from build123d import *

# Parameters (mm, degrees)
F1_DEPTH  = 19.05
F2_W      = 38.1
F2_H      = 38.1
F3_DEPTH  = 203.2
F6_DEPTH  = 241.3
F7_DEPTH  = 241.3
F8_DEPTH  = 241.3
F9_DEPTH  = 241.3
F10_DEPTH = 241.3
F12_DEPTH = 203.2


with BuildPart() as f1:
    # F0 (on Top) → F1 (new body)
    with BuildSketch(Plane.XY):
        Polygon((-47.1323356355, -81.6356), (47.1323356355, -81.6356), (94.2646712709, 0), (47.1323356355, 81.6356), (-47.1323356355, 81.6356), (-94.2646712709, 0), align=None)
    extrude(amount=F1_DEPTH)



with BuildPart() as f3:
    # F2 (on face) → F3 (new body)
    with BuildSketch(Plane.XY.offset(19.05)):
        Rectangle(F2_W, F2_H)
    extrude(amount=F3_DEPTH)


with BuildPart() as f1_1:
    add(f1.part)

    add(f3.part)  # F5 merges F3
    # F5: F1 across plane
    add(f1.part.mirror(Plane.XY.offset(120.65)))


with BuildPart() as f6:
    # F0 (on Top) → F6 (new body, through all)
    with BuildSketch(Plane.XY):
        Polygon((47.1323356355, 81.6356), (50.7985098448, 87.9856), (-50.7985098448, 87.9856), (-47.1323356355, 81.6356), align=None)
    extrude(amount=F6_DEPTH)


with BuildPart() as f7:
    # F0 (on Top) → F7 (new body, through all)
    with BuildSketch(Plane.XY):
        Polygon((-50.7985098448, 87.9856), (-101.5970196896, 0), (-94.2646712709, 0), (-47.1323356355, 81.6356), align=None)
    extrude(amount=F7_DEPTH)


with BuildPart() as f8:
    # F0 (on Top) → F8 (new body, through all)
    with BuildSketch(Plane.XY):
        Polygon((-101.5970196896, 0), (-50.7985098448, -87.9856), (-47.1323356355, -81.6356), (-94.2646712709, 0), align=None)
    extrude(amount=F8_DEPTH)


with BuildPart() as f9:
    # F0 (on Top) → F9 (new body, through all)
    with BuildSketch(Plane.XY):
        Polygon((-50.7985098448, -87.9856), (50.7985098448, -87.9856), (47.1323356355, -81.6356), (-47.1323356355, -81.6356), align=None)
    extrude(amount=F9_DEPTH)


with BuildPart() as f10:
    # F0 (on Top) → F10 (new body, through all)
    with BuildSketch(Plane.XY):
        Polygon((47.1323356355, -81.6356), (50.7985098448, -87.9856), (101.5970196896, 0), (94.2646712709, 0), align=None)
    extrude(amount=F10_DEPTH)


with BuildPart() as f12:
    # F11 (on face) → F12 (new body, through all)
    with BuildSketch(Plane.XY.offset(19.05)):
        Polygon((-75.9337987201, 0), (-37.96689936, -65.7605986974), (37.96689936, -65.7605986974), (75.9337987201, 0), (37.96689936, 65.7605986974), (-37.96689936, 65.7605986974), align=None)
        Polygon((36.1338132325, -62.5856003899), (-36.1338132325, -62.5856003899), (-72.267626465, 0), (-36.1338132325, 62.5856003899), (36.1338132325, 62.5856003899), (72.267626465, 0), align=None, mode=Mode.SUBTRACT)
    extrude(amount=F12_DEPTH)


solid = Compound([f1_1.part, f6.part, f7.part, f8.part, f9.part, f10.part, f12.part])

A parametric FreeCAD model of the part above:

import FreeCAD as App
import Part
import Sketcher

V = App.Vector
Q = App.Units.Quantity


def add_polygon(sketch, points):
    """Adds a closed chain of lines whose ends are joined by coincident constraints."""
    first, n = sketch.GeometryCount, len(points)
    for a, b in zip(points, points[1:] + points[:1]):
        sketch.addGeometry(Part.LineSegment(App.Vector(*a, 0), App.Vector(*b, 0)), False)
    for i in range(n):
        sketch.addConstraint(Sketcher.Constraint("Coincident", first + i, 2, first + (i + 1) % n, 1))

doc = App.newDocument("Part")
body = doc.addObject("PartDesign::Body", "Body")

# Sketch on XY plane
sketch1 = body.newObject("Sketcher::SketchObject", "Sketch")
sketch1.AttachmentSupport = (doc.getObject("XY_Plane"), [""])
sketch1.MapMode = "FlatFace"
add_polygon(sketch1, [(-47, -82), (47, -82), (94, 0), (47, 82), (-47, 82), (-94, 0)])  # lines 0-5
sketch1.addConstraint(Sketcher.Constraint("Horizontal", 0))
sketch1.addConstraint(Sketcher.Constraint("Horizontal", 3))
sketch1.addConstraint(Sketcher.Constraint("Symmetric", 0, 2, 3, 2, -1, 1))
sketch1.addConstraint(Sketcher.Constraint("Symmetric", 1, 2, 4, 2, -1, 1))
sketch1.addConstraint(Sketcher.Constraint("PointOnObject", 1, 2, -1))
sketch1.addConstraint(Sketcher.Constraint("Parallel", 2, 5))
sketch1.addConstraint(Sketcher.Constraint("Vertical", 0, 2, 2, 2))
sketch1.addConstraint(Sketcher.Constraint("Angle", 1, Q("60 deg")))
sketch1.addConstraint(Sketcher.Constraint("DistanceY", 0, 2, -1, 1, Q("3.214 in")))
sketch1.addConstraint(Sketcher.Constraint("DistanceX", 0, 1, 0, 2, Q("94.264671 mm")))
pad1 = body.newObject("PartDesign::Pad", "Pad")
pad1.Profile = sketch1
pad1.Length = Q("0.75 in")
body2 = doc.addObject("PartDesign::Body", "Body001")

# Sketch on XY plane
sketch2 = body2.newObject("Sketcher::SketchObject", "Sketch001")
sketch2.AttachmentSupport = (doc.getObject("XY_Plane001"), [""])
sketch2.MapMode = "FlatFace"
sketch2.AttachmentOffset = App.Placement(V(0, 0, 0.75 * 25.4), App.Rotation())
add_polygon(sketch2, [(-19, 19), (-19, -19), (19, -19), (19, 19)])  # lines 0-3
sketch2.addConstraint(Sketcher.Constraint("Vertical", 0))
sketch2.addConstraint(Sketcher.Constraint("Horizontal", 1))
sketch2.addConstraint(Sketcher.Constraint("Vertical", 2))
sketch2.addConstraint(Sketcher.Constraint("Horizontal", 3))
sketch2.addConstraint(Sketcher.Constraint("Symmetric", 0, 2, 2, 2, -1, 1))
sketch2.addConstraint(Sketcher.Constraint("Equal", 3, 0))
sketch2.addConstraint(Sketcher.Constraint("DistanceX", 1, 1, 1, 2, Q("1.5 in")))
pad2 = body2.newObject("PartDesign::Pad", "Pad001")
pad2.Profile = sketch2
pad2.Length = Q("8 in")
body3 = doc.addObject("PartDesign::Body", "Body002")
doc.recompute()

body3.BaseFeature = body
doc.recompute()

boolean = body3.newObject("PartDesign::Boolean", "Boolean")
boolean.Type = "Fuse"
boolean.addObjects([body2])
doc.recompute()

mirroring = doc.addObject("Part::Mirroring", "Mirroring")
mirroring.Source = body
mirroring.Base = V(0, 0, 120.65)
mirroring.Normal = V(0, 0, 1)
body4 = doc.addObject("PartDesign::Body", "Body003")
body4.BaseFeature = mirroring
boolean2 = body3.newObject("PartDesign::Boolean", "Boolean001")
boolean2.Type = "Fuse"
boolean2.addObjects([body4])
doc.recompute()
body5 = doc.addObject("PartDesign::Body", "Body004")

# Sketch on XY plane
sketch3 = body5.newObject("Sketcher::SketchObject", "Sketch002")
sketch3.AttachmentSupport = (doc.getObject("XY_Plane004"), [""])
sketch3.MapMode = "FlatFace"
add_polygon(sketch3, [(47, 82), (51, 88), (-51, 88), (-47, 82)])  # lines 0-3
sketch3.addConstraint(Sketcher.Constraint("Horizontal", 1))
sketch3.addConstraint(Sketcher.Constraint("Horizontal", 3))
sketch3.addConstraint(Sketcher.Constraint("Equal", 0, 2))
sketch3.addConstraint(Sketcher.Constraint("Angle", 0, Q("60 deg")))
sketch3.addConstraint(Sketcher.Constraint("DistanceY", 2, 2, 1, 2, Q("0.25 in")))
sketch3.addConstraint(Sketcher.Constraint("DistanceY", -1, 1, 0, 2, Q("3.464 in")))
sketch3.addConstraint(Sketcher.Constraint("DistanceX", 1, 2, 1, 1, Q("101.59702 mm")))
sketch3.addConstraint(Sketcher.Constraint("DistanceX", -1, 1, 0, 2, Q("50.79851 mm")))
pad3 = body5.newObject("PartDesign::Pad", "Pad002")
pad3.Profile = sketch3
pad3.Length = Q("9.5 in")
body6 = doc.addObject("PartDesign::Body", "Body005")

# Sketch on XY plane
sketch4 = body6.newObject("Sketcher::SketchObject", "Sketch003")
sketch4.AttachmentSupport = (doc.getObject("XY_Plane005"), [""])
sketch4.MapMode = "FlatFace"
add_polygon(sketch4, [(-51, 88), (-102, 0), (-94, 0), (-47, 82)])  # lines 0-3
sketch4.addConstraint(Sketcher.Constraint("Horizontal", 1))
sketch4.addConstraint(Sketcher.Constraint("PointOnObject", 0, 2, -1))
sketch4.addConstraint(Sketcher.Constraint("Parallel", 0, 2))
sketch4.addConstraint(Sketcher.Constraint("Angle", 0, Q("-120 deg")))
sketch4.addConstraint(Sketcher.Constraint("Angle", 3, Q("120 deg")))
sketch4.addConstraint(Sketcher.Constraint("DistanceY", 2, 2, 3, 2, Q("0.25 in")))
sketch4.addConstraint(Sketcher.Constraint("DistanceY", -1, 1, 2, 2, Q("3.214 in")))
sketch4.addConstraint(Sketcher.Constraint("DistanceX", 0, 2, -1, 1, Q("101.59702 mm")))
pad4 = body6.newObject("PartDesign::Pad", "Pad003")
pad4.Profile = sketch4
pad4.Length = Q("9.5 in")
body7 = doc.addObject("PartDesign::Body", "Body006")

# Sketch on XY plane
sketch5 = body7.newObject("Sketcher::SketchObject", "Sketch004")
sketch5.AttachmentSupport = (doc.getObject("XY_Plane006"), [""])
sketch5.MapMode = "FlatFace"
add_polygon(sketch5, [(-102, 0), (-51, -88), (-47, -82), (-94, 0)])  # lines 0-3
sketch5.addConstraint(Sketcher.Constraint("Horizontal", 3))
sketch5.addConstraint(Sketcher.Constraint("PointOnObject", 2, 2, -1))
sketch5.addConstraint(Sketcher.Constraint("Parallel", 0, 2))
sketch5.addConstraint(Sketcher.Constraint("Angle", 0, Q("-60 deg")))
sketch5.addConstraint(Sketcher.Constraint("Angle", 1, Q("60 deg")))
sketch5.addConstraint(Sketcher.Constraint("DistanceY", 0, 2, 1, 2, Q("0.25 in")))
sketch5.addConstraint(Sketcher.Constraint("DistanceY", 0, 2, -1, 1, Q("3.464 in")))
sketch5.addConstraint(Sketcher.Constraint("DistanceX", 0, 2, -1, 1, Q("50.79851 mm")))
pad5 = body7.newObject("PartDesign::Pad", "Pad004")
pad5.Profile = sketch5
pad5.Length = Q("9.5 in")
body8 = doc.addObject("PartDesign::Body", "Body007")

# Sketch on XY plane
sketch6 = body8.newObject("Sketcher::SketchObject", "Sketch005")
sketch6.AttachmentSupport = (doc.getObject("XY_Plane007"), [""])
sketch6.MapMode = "FlatFace"
add_polygon(sketch6, [(-51, -88), (51, -88), (47, -82), (-47, -82)])  # lines 0-3
sketch6.addConstraint(Sketcher.Constraint("Horizontal", 0))
sketch6.addConstraint(Sketcher.Constraint("Horizontal", 2))
sketch6.addConstraint(Sketcher.Constraint("Equal", 1, 3))
sketch6.addConstraint(Sketcher.Constraint("Angle", 1, Q("120 deg")))
sketch6.addConstraint(Sketcher.Constraint("DistanceY", 0, 2, 1, 2, Q("0.25 in")))
sketch6.addConstraint(Sketcher.Constraint("DistanceY", 0, 2, -1, 1, Q("3.464 in")))
sketch6.addConstraint(Sketcher.Constraint("DistanceX", 0, 1, 0, 2, Q("101.59702 mm")))
sketch6.addConstraint(Sketcher.Constraint("DistanceX", -1, 1, 0, 2, Q("50.79851 mm")))
pad6 = body8.newObject("PartDesign::Pad", "Pad005")
pad6.Profile = sketch6
pad6.Length = Q("9.5 in")
body9 = doc.addObject("PartDesign::Body", "Body008")

# Sketch on XY plane
sketch7 = body9.newObject("Sketcher::SketchObject", "Sketch006")
sketch7.AttachmentSupport = (doc.getObject("XY_Plane008"), [""])
sketch7.MapMode = "FlatFace"
add_polygon(sketch7, [(47, -82), (51, -88), (102, 0), (94, 0)])  # lines 0-3
sketch7.addConstraint(Sketcher.Constraint("Horizontal", 2))
sketch7.addConstraint(Sketcher.Constraint("PointOnObject", 1, 2, -1))
sketch7.addConstraint(Sketcher.Constraint("Parallel", 1, 3))
sketch7.addConstraint(Sketcher.Constraint("Angle", 0, Q("-60 deg")))
sketch7.addConstraint(Sketcher.Constraint("Angle", 1, Q("60 deg")))
sketch7.addConstraint(Sketcher.Constraint("DistanceY", 0, 2, 3, 2, Q("0.25 in")))
sketch7.addConstraint(Sketcher.Constraint("DistanceY", 0, 2, -1, 1, Q("3.464 in")))
sketch7.addConstraint(Sketcher.Constraint("DistanceX", -1, 1, 0, 2, Q("50.79851 mm")))
pad7 = body9.newObject("PartDesign::Pad", "Pad006")
pad7.Profile = sketch7
pad7.Length = Q("9.5 in")
body10 = doc.addObject("PartDesign::Body", "Body009")

# Sketch on XY plane
sketch8 = body10.newObject("Sketcher::SketchObject", "Sketch007")
sketch8.AttachmentSupport = (doc.getObject("XY_Plane009"), [""])
sketch8.MapMode = "FlatFace"
sketch8.AttachmentOffset = App.Placement(V(0, 0, 0.75 * 25.4), App.Rotation())
add_polygon(sketch8, [(-76, 0), (-38, -66), (38, -66), (76, 0), (38, 66), (-38, 66)])  # lines 0-5
add_polygon(sketch8, [(72, 0), (36, -63), (-36, -63), (-72, 0), (-36, 63), (36, 63)])  # lines 6-11
sketch8.addConstraint(Sketcher.Constraint("Horizontal", 1))
sketch8.addConstraint(Sketcher.Constraint("Horizontal", 4))
sketch8.addConstraint(Sketcher.Constraint("Horizontal", 7))
sketch8.addConstraint(Sketcher.Constraint("Horizontal", 10))
sketch8.addConstraint(Sketcher.Constraint("Symmetric", 0, 2, 3, 2, -1, 1))
sketch8.addConstraint(Sketcher.Constraint("Symmetric", 2, 2, 5, 2, -1, 1))
sketch8.addConstraint(Sketcher.Constraint("Symmetric", 6, 2, 9, 2, -1, 1))
sketch8.addConstraint(Sketcher.Constraint("Symmetric", 8, 2, 11, 2, -1, 1))
sketch8.addConstraint(Sketcher.Constraint("PointOnObject", 2, 2, -1))
sketch8.addConstraint(Sketcher.Constraint("PointOnObject", 8, 2, -1))
sketch8.addConstraint(Sketcher.Constraint("Parallel", 2, 5))
sketch8.addConstraint(Sketcher.Constraint("Parallel", 5, 6))
sketch8.addConstraint(Sketcher.Constraint("Parallel", 3, 8))
sketch8.addConstraint(Sketcher.Constraint("Parallel", 8, 11))
sketch8.addConstraint(Sketcher.Constraint("Vertical", 1, 2, 3, 2))
sketch8.addConstraint(Sketcher.Constraint("Angle", 0, Q("-60 deg")))
sketch8.addConstraint(Sketcher.Constraint("DistanceY", 0, 2, -1, 1, Q("2.5889999 in")))
sketch8.addConstraint(Sketcher.Constraint("DistanceY", 6, 2, -1, 1, Q("2.464 in")))
sketch8.addConstraint(Sketcher.Constraint("DistanceX", 1, 1, 1, 2, Q("75.933799 mm")))
sketch8.addConstraint(Sketcher.Constraint("DistanceX", 7, 2, 7, 1, Q("72.267626 mm")))
pad8 = body10.newObject("PartDesign::Pad", "Pad007")
pad8.Profile = sketch8
pad8.Length = Q("8 in")
mirroring.Visibility = False

doc.recompute()
